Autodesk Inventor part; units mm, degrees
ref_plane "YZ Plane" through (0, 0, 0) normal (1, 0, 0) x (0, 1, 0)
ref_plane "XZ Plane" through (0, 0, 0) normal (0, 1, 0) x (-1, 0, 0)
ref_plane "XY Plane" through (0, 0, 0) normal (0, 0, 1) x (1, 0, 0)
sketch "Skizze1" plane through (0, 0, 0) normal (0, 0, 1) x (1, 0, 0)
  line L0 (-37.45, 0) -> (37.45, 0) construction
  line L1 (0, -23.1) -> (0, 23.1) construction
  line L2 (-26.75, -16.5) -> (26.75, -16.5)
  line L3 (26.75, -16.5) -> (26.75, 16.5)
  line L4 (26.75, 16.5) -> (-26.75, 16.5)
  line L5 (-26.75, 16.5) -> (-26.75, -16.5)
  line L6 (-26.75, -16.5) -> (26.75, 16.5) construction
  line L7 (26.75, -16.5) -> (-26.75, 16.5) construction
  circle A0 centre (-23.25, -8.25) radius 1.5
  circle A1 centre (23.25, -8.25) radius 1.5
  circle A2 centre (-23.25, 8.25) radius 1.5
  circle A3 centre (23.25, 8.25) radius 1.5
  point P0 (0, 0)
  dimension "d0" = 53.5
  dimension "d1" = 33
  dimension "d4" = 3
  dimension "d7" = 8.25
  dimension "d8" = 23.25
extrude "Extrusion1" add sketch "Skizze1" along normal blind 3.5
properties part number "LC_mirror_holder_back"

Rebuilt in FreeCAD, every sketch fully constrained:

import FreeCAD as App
import Part
import Sketcher

doc = App.newDocument("Part")
body = doc.addObject("PartDesign::Body", "Body")

sketch1 = doc.addObject("Sketcher::SketchObject", "Sketch")
body.addObject(sketch1)
sketch1.AttachmentSupport = (doc.XY_Plane, [""])
sketch1.MapMode = "FlatFace"
sketch1.addGeometry([
    Part.LineSegment(App.Vector(-26.75, 16.5, 0), App.Vector(-26.75, -16.5, 0)),
    Part.LineSegment(App.Vector(-26.75, -16.5, 0), App.Vector(26.75, -16.5, 0)),
    Part.LineSegment(App.Vector(26.75, -16.5, 0), App.Vector(26.75, 16.5, 0)),
    Part.LineSegment(App.Vector(26.75, 16.5, 0), App.Vector(-26.75, 16.5, 0)),
    Part.Circle(App.Vector(-23.25, -8.25, 0), App.Vector(0, 0, 1), 1.5),
    Part.Circle(App.Vector(23.25, -8.25, 0), App.Vector(0, 0, 1), 1.5),
    Part.Circle(App.Vector(-23.25, 8.25, 0), App.Vector(0, 0, 1), 1.5),
    Part.Circle(App.Vector(23.25, 8.25, 0), App.Vector(0, 0, 1), 1.5),
], False)
sketch1.addConstraint([
    Sketcher.Constraint("Coincident", 0, 2, 1, 1),
    Sketcher.Constraint("Coincident", 1, 2, 2, 1),
    Sketcher.Constraint("Coincident", 2, 2, 3, 1),
    Sketcher.Constraint("Coincident", 3, 2, 0, 1),
    Sketcher.Constraint("Vertical", 0),
    Sketcher.Constraint("Horizontal", 1),
    Sketcher.Constraint("Vertical", 2),
    Sketcher.Constraint("Horizontal", 3),
    Sketcher.Constraint("Equal", 4, 5),
    Sketcher.Constraint("Equal", 5, 6),
    Sketcher.Constraint("Equal", 6, 7),
    Sketcher.Constraint("Symmetric", 5, 3, 6, 3, -1, 1),
    Sketcher.Constraint("Symmetric", 4, 3, 7, 3, -1, 1),
    Sketcher.Constraint("Symmetric", 0, 2, 2, 2, -1, 1),
    Sketcher.Constraint("Symmetric", 4, 3, 5, 3, -2),
    Sketcher.Constraint("Diameter", 4, 3.0),
    Sketcher.Constraint("DistanceY", 0, 2, 0, 1, 33.0),
    Sketcher.Constraint("DistanceX", 1, 1, 1, 2, 53.5),
    Sketcher.Constraint("DistanceX", 4, 3, -1, 1, 23.25),
    Sketcher.Constraint("DistanceY", 4, 3, -1, 1, 8.25),
])
pad1 = doc.addObject("PartDesign::Pad", "Pad")
body.addObject(pad1)
pad1.Profile = sketch1
pad1.Length = 3.5

doc.recompute()
